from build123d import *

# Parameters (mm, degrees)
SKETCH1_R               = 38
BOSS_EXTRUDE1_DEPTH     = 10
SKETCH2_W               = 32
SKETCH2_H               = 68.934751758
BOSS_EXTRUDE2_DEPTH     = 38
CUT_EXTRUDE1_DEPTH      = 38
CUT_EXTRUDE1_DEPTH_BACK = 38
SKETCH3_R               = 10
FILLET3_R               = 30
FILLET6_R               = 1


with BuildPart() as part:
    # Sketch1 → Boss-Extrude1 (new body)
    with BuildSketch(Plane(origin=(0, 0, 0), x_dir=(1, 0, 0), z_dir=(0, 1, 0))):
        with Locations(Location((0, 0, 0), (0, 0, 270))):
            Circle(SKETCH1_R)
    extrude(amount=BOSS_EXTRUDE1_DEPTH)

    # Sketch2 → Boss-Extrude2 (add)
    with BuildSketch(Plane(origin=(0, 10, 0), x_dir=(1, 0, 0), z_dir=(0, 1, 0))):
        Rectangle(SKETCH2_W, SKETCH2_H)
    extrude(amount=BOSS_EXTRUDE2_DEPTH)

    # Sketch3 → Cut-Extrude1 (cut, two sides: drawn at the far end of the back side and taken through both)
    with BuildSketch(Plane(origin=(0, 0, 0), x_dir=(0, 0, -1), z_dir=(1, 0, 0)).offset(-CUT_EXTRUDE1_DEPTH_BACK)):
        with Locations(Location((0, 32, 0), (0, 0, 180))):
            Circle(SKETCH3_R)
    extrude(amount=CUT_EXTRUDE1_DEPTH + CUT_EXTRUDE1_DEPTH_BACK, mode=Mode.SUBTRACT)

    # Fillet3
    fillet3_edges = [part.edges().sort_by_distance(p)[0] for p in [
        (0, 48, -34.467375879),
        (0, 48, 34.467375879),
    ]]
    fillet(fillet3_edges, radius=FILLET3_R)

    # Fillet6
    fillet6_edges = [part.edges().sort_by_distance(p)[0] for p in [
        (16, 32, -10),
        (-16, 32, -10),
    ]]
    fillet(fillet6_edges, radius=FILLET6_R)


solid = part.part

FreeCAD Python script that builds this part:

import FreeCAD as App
import Part
import Sketcher
from FreeCAD import Vector
Q = App.Units.Quantity


def edges_at(feature, points):
    """Names of the edges that pass closest to the given points."""
    edges = feature.Shape.Edges
    near = lambda p: min(range(len(edges)), key=lambda i: edges[i].distToShape(Part.Vertex(*p))[0])
    return sorted({f"Edge{near(p) + 1}" for p in points})


def add_polygon(sketch, points):
    """Adds a closed chain of lines whose ends are joined by coincident constraints."""
    first, n = sketch.GeometryCount, len(points)
    for a, b in zip(points, points[1:] + points[:1]):
        sketch.addGeometry(Part.LineSegment(App.Vector(*a, 0), App.Vector(*b, 0)), False)
    for i in range(n):
        sketch.addConstraint(Sketcher.Constraint("Coincident", first + i, 2, first + (i + 1) % n, 1))

doc = App.newDocument("Part")
params = doc.addObject("Spreadsheet::Sheet", "Params")
for row, (alias, value) in enumerate([
    ("sketch1_diameter", "76 mm"),
    ("pad1_length", "10 mm"),
    ("sketch2_width", "32 mm"),
    ("pad2_length", "38 mm"),
    ("sketch3_diameter", "20 mm"),
    ("fillet_radius", "30 mm"),
    ("fillet2_radius", "1 mm"),
], start=1):
    params.set(f"A{row}", alias)
    params.set(f"B{row}", "=" + value)
    params.setAlias(f"B{row}", alias)

body = doc.addObject("PartDesign::Body", "Body")

sketch1 = body.newObject("Sketcher::SketchObject", "Sketch")
sketch1.AttachmentSupport = (doc.getObject("XZ_Plane"), [""])
sketch1.MapMode = "FlatFace"
sketch1.addGeometry(Part.Circle(Vector(0, 0, 0), Vector(0, 0, 1), 38), False)
sketch1.addConstraint(Sketcher.Constraint("Coincident", 0, 3, -1, 1))
sketch1.addConstraint(Sketcher.Constraint("Diameter", 0, Q("76 mm")))
sketch1.setExpression("Constraints[1]", "Params.sketch1_diameter")
pad1 = body.newObject("PartDesign::Pad", "Pad")
pad1.Profile = sketch1
pad1.setExpression("Length", "Params.pad1_length")
pad1.Reversed = True

sketch2 = body.newObject("Sketcher::SketchObject", "Sketch001")
sketch2.AttachmentSupport = (doc.getObject("XZ_Plane"), [""])
sketch2.MapMode = "FlatFace"
sketch2.AttachmentOffset = App.Placement(Vector(0, 0, -10), App.Rotation())
add_polygon(sketch2, [(-16, -34.467376), (-16, 34.467376), (16, 34.467376), (16, -34.467376)])
sketch2.addConstraint(Sketcher.Constraint("Vertical", 0))
sketch2.addConstraint(Sketcher.Constraint("Horizontal", 1))
sketch2.addConstraint(Sketcher.Constraint("Vertical", 2))
sketch2.addConstraint(Sketcher.Constraint("Horizontal", 3))
sketch2.addConstraint(Sketcher.Constraint("Symmetric", 0, 2, 2, 2, -1, 1))
sketch2.addConstraint(Sketcher.Constraint("DistanceX", 1, 1, 1, 2, Q("32 mm")))
sketch2.addConstraint(Sketcher.Constraint("DistanceY", 0, 1, 0, 2, Q("68.934752 mm")))
sketch2.setExpression("Constraints[9]", "Params.sketch2_width")
pad2 = body.newObject("PartDesign::Pad", "Pad001")
pad2.Profile = sketch2
pad2.setExpression("Length", "Params.pad2_length")
pad2.Reversed = True

sketch3 = body.newObject("Sketcher::SketchObject", "Sketch002")
sketch3.AttachmentSupport = (doc.getObject("YZ_Plane"), [""])
sketch3.MapMode = "FlatFace"
sketch3.addGeometry(Part.Circle(Vector(32, 0, 0), Vector(0, 0, 1), 10), False)
sketch3.addConstraint(Sketcher.Constraint("PointOnObject", 0, 3, -1))
sketch3.addConstraint(Sketcher.Constraint("Diameter", 0, Q("20 mm")))
sketch3.addConstraint(Sketcher.Constraint("DistanceX", -1, 1, 0, 3, Q("32 mm")))
sketch3.setExpression("Constraints[1]", "Params.sketch3_diameter")
pocket1 = body.newObject("PartDesign::Pocket", "Pocket")
pocket1.Profile = sketch3
pocket1.Type = "ThroughAll"
pocket1.Midplane = True
doc.recompute()

fillet = body.newObject("PartDesign::Fillet", "Fillet")
fillet.Base = (pocket1, edges_at(pocket1, [(0, 48, -34.467), (0, 48, 34.467)]))
fillet.setExpression("Radius", "Params.fillet_radius")
doc.recompute()

fillet2 = body.newObject("PartDesign::Fillet", "Fillet001")
fillet2.Base = (fillet, edges_at(fillet, [(16, 32, -10), (-16, 32, -10)]))
fillet2.setExpression("Radius", "Params.fillet2_radius")

doc.recompute()
